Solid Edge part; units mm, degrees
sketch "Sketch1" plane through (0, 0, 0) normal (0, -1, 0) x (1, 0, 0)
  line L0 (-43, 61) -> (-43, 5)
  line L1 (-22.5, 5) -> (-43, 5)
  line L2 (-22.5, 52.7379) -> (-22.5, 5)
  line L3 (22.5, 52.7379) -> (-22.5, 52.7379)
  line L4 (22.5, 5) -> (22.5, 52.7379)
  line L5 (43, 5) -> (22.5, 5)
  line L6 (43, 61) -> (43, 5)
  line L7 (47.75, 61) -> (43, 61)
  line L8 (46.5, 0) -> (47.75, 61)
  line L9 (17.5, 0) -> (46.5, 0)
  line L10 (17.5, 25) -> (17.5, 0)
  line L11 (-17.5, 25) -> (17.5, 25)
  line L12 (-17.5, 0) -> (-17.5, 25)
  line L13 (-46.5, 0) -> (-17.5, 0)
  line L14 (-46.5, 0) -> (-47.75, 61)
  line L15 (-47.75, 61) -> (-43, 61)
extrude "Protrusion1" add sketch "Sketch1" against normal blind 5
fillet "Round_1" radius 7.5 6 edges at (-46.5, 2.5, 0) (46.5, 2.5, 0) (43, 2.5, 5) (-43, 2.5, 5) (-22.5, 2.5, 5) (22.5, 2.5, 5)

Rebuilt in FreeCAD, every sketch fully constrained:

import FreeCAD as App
import Part
import Sketcher

V = App.Vector
Q = App.Units.Quantity


def edges_at(feature, points):
    """Names of the edges that pass closest to the given points."""
    edges = feature.Shape.Edges
    near = lambda p: min(range(len(edges)), key=lambda i: edges[i].distToShape(Part.Vertex(*p))[0])
    return sorted({f"Edge{near(p) + 1}" for p in points})


def add_polygon(sketch, points):
    """Adds a closed chain of lines whose ends are joined by coincident constraints."""
    first, n = sketch.GeometryCount, len(points)
    for a, b in zip(points, points[1:] + points[:1]):
        sketch.addGeometry(Part.LineSegment(App.Vector(*a, 0), App.Vector(*b, 0)), False)
    for i in range(n):
        sketch.addConstraint(Sketcher.Constraint("Coincident", first + i, 2, first + (i + 1) % n, 1))

doc = App.newDocument("Part")
body = doc.addObject("PartDesign::Body", "Body")

sketch1 = body.newObject("Sketcher::SketchObject", "Sketch")
sketch1.AttachmentSupport = (doc.getObject("XZ_Plane"), [""])
sketch1.MapMode = "FlatFace"
add_polygon(sketch1, [(-43, 5), (-43, 61), (-47.8, 61), (-46.5, 0), (-17.5, 0), (-17.5, 25), (17.5, 25), (17.5, 0), (46.5, 0), (47.8, 61), (43, 61), (43, 5), (22.5, 5), (22.5, 52.7), (-22.5, 52.7), (-22.5, 5)])
sketch1.addConstraint(Sketcher.Constraint("Vertical", 0))
sketch1.addConstraint(Sketcher.Constraint("Horizontal", 1))
sketch1.addConstraint(Sketcher.Constraint("Horizontal", 3))
sketch1.addConstraint(Sketcher.Constraint("Vertical", 4))
sketch1.addConstraint(Sketcher.Constraint("Horizontal", 5))
sketch1.addConstraint(Sketcher.Constraint("Vertical", 6))
sketch1.addConstraint(Sketcher.Constraint("Horizontal", 7))
sketch1.addConstraint(Sketcher.Constraint("Horizontal", 9))
sketch1.addConstraint(Sketcher.Constraint("Vertical", 10))
sketch1.addConstraint(Sketcher.Constraint("Horizontal", 11))
sketch1.addConstraint(Sketcher.Constraint("Vertical", 12))
sketch1.addConstraint(Sketcher.Constraint("Horizontal", 13))
sketch1.addConstraint(Sketcher.Constraint("Vertical", 14))
sketch1.addConstraint(Sketcher.Constraint("Horizontal", 15))
sketch1.addConstraint(Sketcher.Constraint("Symmetric", 3, 2, 6, 2, -1, 1))
sketch1.addConstraint(Sketcher.Constraint("Symmetric", 2, 2, 7, 2, -2))
sketch1.addConstraint(Sketcher.Constraint("Symmetric", 1, 2, 8, 2, -2))
sketch1.addConstraint(Sketcher.Constraint("Symmetric", 11, 2, 14, 2, -2))
sketch1.addConstraint(Sketcher.Constraint("Equal", 1, 9))
sketch1.addConstraint(Sketcher.Constraint("DistanceX", 3, 1, 3, 2, Q("29 mm")))
sketch1.addConstraint(Sketcher.Constraint("DistanceX", 5, 1, 5, 2, Q("35 mm")))
sketch1.addConstraint(Sketcher.Constraint("DistanceX", 13, 2, 13, 1, Q("45 mm")))
sketch1.addConstraint(Sketcher.Constraint("DistanceY", 0, 1, 0, 2, Q("56 mm")))
sketch1.addConstraint(Sketcher.Constraint("DistanceY", 4, 1, 4, 2, Q("25 mm")))
sketch1.addConstraint(Sketcher.Constraint("DistanceX", 11, 2, 11, 1, Q("20.5 mm")))
sketch1.addConstraint(Sketcher.Constraint("DistanceY", -1, 1, 0, 2, Q("61 mm")))
sketch1.addConstraint(Sketcher.Constraint("DistanceX", 1, 2, 1, 1, Q("4.75 mm")))
sketch1.addConstraint(Sketcher.Constraint("DistanceY", 12, 1, 12, 2, Q("47.738 mm")))
pad1 = body.newObject("PartDesign::Pad", "Pad")
pad1.Profile = sketch1
pad1.Length = 5
pad1.Reversed = True
doc.recompute()

fillet = body.newObject("PartDesign::Fillet", "Fillet")
fillet.Base = (pad1, edges_at(pad1, [
    (-46.5, 2.5, 0),
    (46.5, 2.5, 0),
    (43, 2.5, 5),
    (-43, 2.5, 5),
    (-22.5, 2.5, 5),
    (22.5, 2.5, 5),
]))
fillet.Radius = 7.5

doc.recompute()
